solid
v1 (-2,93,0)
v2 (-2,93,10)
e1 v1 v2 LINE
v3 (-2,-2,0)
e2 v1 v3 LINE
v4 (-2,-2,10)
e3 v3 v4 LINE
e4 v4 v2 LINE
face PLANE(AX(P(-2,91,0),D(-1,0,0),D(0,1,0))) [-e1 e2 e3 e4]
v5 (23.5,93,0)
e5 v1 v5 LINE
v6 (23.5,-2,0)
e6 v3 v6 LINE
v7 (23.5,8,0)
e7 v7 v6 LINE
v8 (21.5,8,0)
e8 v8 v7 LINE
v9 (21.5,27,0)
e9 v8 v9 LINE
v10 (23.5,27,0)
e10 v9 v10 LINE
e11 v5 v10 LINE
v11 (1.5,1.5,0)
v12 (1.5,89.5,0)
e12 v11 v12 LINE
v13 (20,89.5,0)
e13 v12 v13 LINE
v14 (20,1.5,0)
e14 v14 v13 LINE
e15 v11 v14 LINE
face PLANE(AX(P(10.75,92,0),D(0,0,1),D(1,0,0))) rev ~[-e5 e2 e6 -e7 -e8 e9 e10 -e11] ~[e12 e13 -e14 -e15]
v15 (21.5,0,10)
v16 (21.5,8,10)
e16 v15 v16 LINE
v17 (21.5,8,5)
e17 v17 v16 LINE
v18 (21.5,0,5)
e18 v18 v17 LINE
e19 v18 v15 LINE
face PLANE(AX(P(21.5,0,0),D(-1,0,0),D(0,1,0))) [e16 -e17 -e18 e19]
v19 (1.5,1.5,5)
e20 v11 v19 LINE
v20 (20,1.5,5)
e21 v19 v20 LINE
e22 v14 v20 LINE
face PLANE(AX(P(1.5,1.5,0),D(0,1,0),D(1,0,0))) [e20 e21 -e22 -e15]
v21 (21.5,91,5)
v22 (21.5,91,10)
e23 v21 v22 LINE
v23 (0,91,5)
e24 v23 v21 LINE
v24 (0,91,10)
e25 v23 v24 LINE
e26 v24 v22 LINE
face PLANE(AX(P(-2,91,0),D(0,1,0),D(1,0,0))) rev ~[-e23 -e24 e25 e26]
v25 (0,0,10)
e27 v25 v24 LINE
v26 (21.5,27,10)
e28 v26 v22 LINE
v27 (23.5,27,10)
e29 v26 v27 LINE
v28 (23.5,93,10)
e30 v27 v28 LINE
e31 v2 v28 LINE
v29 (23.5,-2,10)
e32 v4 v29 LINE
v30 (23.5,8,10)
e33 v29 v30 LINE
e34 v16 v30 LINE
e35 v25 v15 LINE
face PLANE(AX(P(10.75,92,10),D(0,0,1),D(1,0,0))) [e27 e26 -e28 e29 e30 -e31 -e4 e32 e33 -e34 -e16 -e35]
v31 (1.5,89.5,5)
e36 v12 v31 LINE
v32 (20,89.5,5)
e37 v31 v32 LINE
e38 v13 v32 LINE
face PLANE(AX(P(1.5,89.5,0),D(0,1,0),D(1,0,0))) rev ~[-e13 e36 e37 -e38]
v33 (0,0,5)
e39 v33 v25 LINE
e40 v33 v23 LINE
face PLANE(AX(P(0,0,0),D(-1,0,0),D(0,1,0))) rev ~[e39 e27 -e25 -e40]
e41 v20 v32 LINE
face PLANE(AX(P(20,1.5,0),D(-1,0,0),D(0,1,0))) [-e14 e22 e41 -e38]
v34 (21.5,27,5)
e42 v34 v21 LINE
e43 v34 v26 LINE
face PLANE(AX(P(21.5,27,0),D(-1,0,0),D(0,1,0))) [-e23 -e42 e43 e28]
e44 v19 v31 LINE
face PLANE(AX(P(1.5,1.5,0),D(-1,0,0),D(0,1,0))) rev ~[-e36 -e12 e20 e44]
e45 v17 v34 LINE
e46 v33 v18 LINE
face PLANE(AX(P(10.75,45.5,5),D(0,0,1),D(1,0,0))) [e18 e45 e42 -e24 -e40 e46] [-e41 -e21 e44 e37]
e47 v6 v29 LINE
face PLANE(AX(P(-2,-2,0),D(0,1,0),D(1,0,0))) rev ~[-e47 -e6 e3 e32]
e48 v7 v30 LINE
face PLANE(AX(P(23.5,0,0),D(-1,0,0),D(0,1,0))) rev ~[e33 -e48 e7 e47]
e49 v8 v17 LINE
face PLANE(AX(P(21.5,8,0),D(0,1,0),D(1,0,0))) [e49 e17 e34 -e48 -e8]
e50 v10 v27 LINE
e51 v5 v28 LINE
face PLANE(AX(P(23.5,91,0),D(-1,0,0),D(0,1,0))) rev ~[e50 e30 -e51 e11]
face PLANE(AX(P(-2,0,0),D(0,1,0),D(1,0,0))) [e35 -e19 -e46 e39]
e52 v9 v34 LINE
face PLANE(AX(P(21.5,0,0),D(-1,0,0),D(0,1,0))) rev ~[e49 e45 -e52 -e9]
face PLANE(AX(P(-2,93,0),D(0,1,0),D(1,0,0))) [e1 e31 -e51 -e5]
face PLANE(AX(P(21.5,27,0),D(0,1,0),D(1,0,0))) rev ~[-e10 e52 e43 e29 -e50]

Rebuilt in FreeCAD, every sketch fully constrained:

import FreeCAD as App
import Part
import Sketcher

doc = App.newDocument("Part")
body = doc.addObject("PartDesign::Body", "Body")

# Sketch on XY plane
sketch1 = body.newObject("Sketcher::SketchObject", "Sketch")
sketch1.AttachmentSupport = (doc.getObject("XY_Plane"), [""])
sketch1.MapMode = "FlatFace"
sketch1.addGeometry(Part.LineSegment(App.Vector(-2, 93, 0), App.Vector(-2, 91, 0)), False)
sketch1.addGeometry(Part.LineSegment(App.Vector(-2, 91, 0), App.Vector(23.5, 91, 0)), False)
sketch1.addGeometry(Part.LineSegment(App.Vector(23.5, 91, 0), App.Vector(23.5, 93, 0)), False)
sketch1.addGeometry(Part.LineSegment(App.Vector(23.5, 93, 0), App.Vector(-2, 93, 0)), False)
sketch1.addConstraint(Sketcher.Constraint("Coincident", 0, 2, 1, 1))
sketch1.addConstraint(Sketcher.Constraint("Coincident", 1, 2, 2, 1))
sketch1.addConstraint(Sketcher.Constraint("Coincident", 2, 2, 3, 1))
sketch1.addConstraint(Sketcher.Constraint("Coincident", 3, 2, 0, 1))
sketch1.addConstraint(Sketcher.Constraint("Vertical", 0))
sketch1.addConstraint(Sketcher.Constraint("Horizontal", 1))
sketch1.addConstraint(Sketcher.Constraint("Vertical", 2))
sketch1.addConstraint(Sketcher.Constraint("Horizontal", 3))
sketch1.addConstraint(Sketcher.Constraint("DistanceY", 0, 2, 0, 1, 2.0))
sketch1.addConstraint(Sketcher.Constraint("DistanceX", 1, 1, 1, 2, 25.5))
sketch1.addConstraint(Sketcher.Constraint("DistanceX", 0, 2, -1, 1, 2.0))
sketch1.addConstraint(Sketcher.Constraint("DistanceY", -1, 1, 0, 2, 91.0))
pad1 = body.newObject("PartDesign::Pad", "Pad")
pad1.Profile = sketch1
pad1.Length = 10
body2 = doc.addObject("PartDesign::Body", "Body001")

# Sketch on XY plane
sketch2 = body2.newObject("Sketcher::SketchObject", "Sketch001")
sketch2.AttachmentSupport = (doc.getObject("XY_Plane001"), [""])
sketch2.MapMode = "FlatFace"
sketch2.addGeometry(Part.LineSegment(App.Vector(21.5, 8, 0), App.Vector(21.5, 0, 0)), False)
sketch2.addGeometry(Part.LineSegment(App.Vector(21.5, 0, 0), App.Vector(23.5, 0, 0)), False)
sketch2.addGeometry(Part.LineSegment(App.Vector(23.5, 0, 0), App.Vector(23.5, 8, 0)), False)
sketch2.addGeometry(Part.LineSegment(App.Vector(23.5, 8, 0), App.Vector(21.5, 8, 0)), False)
sketch2.addConstraint(Sketcher.Constraint("Coincident", 0, 2, 1, 1))
sketch2.addConstraint(Sketcher.Constraint("Coincident", 1, 2, 2, 1))
sketch2.addConstraint(Sketcher.Constraint("Coincident", 2, 2, 3, 1))
sketch2.addConstraint(Sketcher.Constraint("Coincident", 3, 2, 0, 1))
sketch2.addConstraint(Sketcher.Constraint("Vertical", 0))
sketch2.addConstraint(Sketcher.Constraint("Horizontal", 1))
sketch2.addConstraint(Sketcher.Constraint("Vertical", 2))
sketch2.addConstraint(Sketcher.Constraint("Horizontal", 3))
sketch2.addConstraint(Sketcher.Constraint("PointOnObject", 0, 2, -1))
sketch2.addConstraint(Sketcher.Constraint("DistanceX", 1, 1, 1, 2, 2.0))
sketch2.addConstraint(Sketcher.Constraint("DistanceY", 0, 2, 0, 1, 8.0))
sketch2.addConstraint(Sketcher.Constraint("DistanceX", -1, 1, 0, 2, 21.5))
pad2 = body2.newObject("PartDesign::Pad", "Pad001")
pad2.Profile = sketch2
pad2.Length = 10
body3 = doc.addObject("PartDesign::Body", "Body002")

# Sketch on XY plane
sketch3 = body3.newObject("Sketcher::SketchObject", "Sketch002")
sketch3.AttachmentSupport = (doc.getObject("XY_Plane002"), [""])
sketch3.MapMode = "FlatFace"
sketch3.addGeometry(Part.LineSegment(App.Vector(21.5, 91, 0), App.Vector(21.5, 27, 0)), False)
sketch3.addGeometry(Part.LineSegment(App.Vector(21.5, 27, 0), App.Vector(23.5, 27, 0)), False)
sketch3.addGeometry(Part.LineSegment(App.Vector(23.5, 27, 0), App.Vector(23.5, 91, 0)), False)
sketch3.addGeometry(Part.LineSegment(App.Vector(23.5, 91, 0), App.Vector(21.5, 91, 0)), False)
sketch3.addConstraint(Sketcher.Constraint("Coincident", 0, 2, 1, 1))
sketch3.addConstraint(Sketcher.Constraint("Coincident", 1, 2, 2, 1))
sketch3.addConstraint(Sketcher.Constraint("Coincident", 2, 2, 3, 1))
sketch3.addConstraint(Sketcher.Constraint("Coincident", 3, 2, 0, 1))
sketch3.addConstraint(Sketcher.Constraint("Vertical", 0))
sketch3.addConstraint(Sketcher.Constraint("Horizontal", 1))
sketch3.addConstraint(Sketcher.Constraint("Vertical", 2))
sketch3.addConstraint(Sketcher.Constraint("Horizontal", 3))
sketch3.addConstraint(Sketcher.Constraint("DistanceX", 1, 1, 1, 2, 2.0))
sketch3.addConstraint(Sketcher.Constraint("DistanceY", 0, 2, 0, 1, 64.0))
sketch3.addConstraint(Sketcher.Constraint("DistanceY", -1, 1, 0, 2, 27.0))
sketch3.addConstraint(Sketcher.Constraint("DistanceX", -1, 1, 0, 2, 21.5))
pad3 = body3.newObject("PartDesign::Pad", "Pad002")
pad3.Profile = sketch3
pad3.Length = 10
body4 = doc.addObject("PartDesign::Body", "Body003")

# Sketch on XY plane
sketch4 = body4.newObject("Sketcher::SketchObject", "Sketch003")
sketch4.AttachmentSupport = (doc.getObject("XY_Plane003"), [""])
sketch4.MapMode = "FlatFace"
sketch4.addGeometry(Part.LineSegment(App.Vector(-2, 0, 0), App.Vector(-2, -2, 0)), False)
sketch4.addGeometry(Part.LineSegment(App.Vector(-2, -2, 0), App.Vector(23.5, -2, 0)), False)
sketch4.addGeometry(Part.LineSegment(App.Vector(23.5, -2, 0), App.Vector(23.5, 0, 0)), False)
sketch4.addGeometry(Part.LineSegment(App.Vector(23.5, 0, 0), App.Vector(-2, 0, 0)), False)
sketch4.addConstraint(Sketcher.Constraint("Coincident", 0, 2, 1, 1))
sketch4.addConstraint(Sketcher.Constraint("Coincident", 1, 2, 2, 1))
sketch4.addConstraint(Sketcher.Constraint("Coincident", 2, 2, 3, 1))
sketch4.addConstraint(Sketcher.Constraint("Coincident", 3, 2, 0, 1))
sketch4.addConstraint(Sketcher.Constraint("Vertical", 0))
sketch4.addConstraint(Sketcher.Constraint("Horizontal", 1))
sketch4.addConstraint(Sketcher.Constraint("Vertical", 2))
sketch4.addConstraint(Sketcher.Constraint("Horizontal", 3))
sketch4.addConstraint(Sketcher.Constraint("PointOnObject", 2, 2, -1))
sketch4.addConstraint(Sketcher.Constraint("DistanceY", 0, 2, 0, 1, 2.0))
sketch4.addConstraint(Sketcher.Constraint("DistanceX", 1, 1, 1, 2, 25.5))
sketch4.addConstraint(Sketcher.Constraint("DistanceX", 0, 2, -1, 1, 2.0))
pad4 = body4.newObject("PartDesign::Pad", "Pad003")
pad4.Profile = sketch4
pad4.Length = 10
body5 = doc.addObject("PartDesign::Body", "Body004")
body5.AllowCompound = True

# Sketch on XY plane
sketch5 = body5.newObject("Sketcher::SketchObject", "Sketch004")
sketch5.AttachmentSupport = (doc.getObject("XY_Plane004"), [""])
sketch5.MapMode = "FlatFace"
sketch5.addGeometry(Part.LineSegment(App.Vector(-2, 91, 0), App.Vector(-2, 0, 0)), False)
sketch5.addGeometry(Part.LineSegment(App.Vector(-2, 0, 0), App.Vector(0, 0, 0)), False)
sketch5.addGeometry(Part.LineSegment(App.Vector(0, 0, 0), App.Vector(0, 91, 0)), False)
sketch5.addGeometry(Part.LineSegment(App.Vector(0, 91, 0), App.Vector(-2, 91, 0)), False)
sketch5.addConstraint(Sketcher.Constraint("Coincident", 0, 2, 1, 1))
sketch5.addConstraint(Sketcher.Constraint("Coincident", 1, 2, 2, 1))
sketch5.addConstraint(Sketcher.Constraint("Coincident", 2, 2, 3, 1))
sketch5.addConstraint(Sketcher.Constraint("Coincident", 3, 2, 0, 1))
sketch5.addConstraint(Sketcher.Constraint("Vertical", 0))
sketch5.addConstraint(Sketcher.Constraint("Horizontal", 1))
sketch5.addConstraint(Sketcher.Constraint("Vertical", 2))
sketch5.addConstraint(Sketcher.Constraint("Horizontal", 3))
sketch5.addConstraint(Sketcher.Constraint("Coincident", 1, 2, -1, 1))
sketch5.addConstraint(Sketcher.Constraint("DistanceX", 1, 1, 1, 2, 2.0))
sketch5.addConstraint(Sketcher.Constraint("DistanceY", 0, 2, 0, 1, 91.0))
pad5 = body5.newObject("PartDesign::Pad", "Pad004")
pad5.Profile = sketch5
pad5.Length = 10
doc.recompute()

boolean = body5.newObject("PartDesign::Boolean", "Boolean")
boolean.Type = "Fuse"
boolean.addObjects([body4])
doc.recompute()

boolean2 = body5.newObject("PartDesign::Boolean", "Boolean001")
boolean2.Type = "Fuse"
boolean2.addObjects([body3])
doc.recompute()

boolean3 = body5.newObject("PartDesign::Boolean", "Boolean002")
boolean3.Type = "Fuse"
boolean3.addObjects([body2])
doc.recompute()

boolean4 = body5.newObject("PartDesign::Boolean", "Boolean003")
boolean4.Type = "Fuse"
boolean4.addObjects([body])
body6 = doc.addObject("PartDesign::Body", "Body005")

# Sketch on XY plane
sketch6 = body6.newObject("Sketcher::SketchObject", "Sketch005")
sketch6.AttachmentSupport = (doc.getObject("XY_Plane005"), [""])
sketch6.MapMode = "FlatFace"
sketch6.addGeometry(Part.LineSegment(App.Vector(1.5, 89.5, 0), App.Vector(1.5, 1.5, 0)), False)
sketch6.addGeometry(Part.LineSegment(App.Vector(1.5, 1.5, 0), App.Vector(20, 1.5, 0)), False)
sketch6.addGeometry(Part.LineSegment(App.Vector(20, 1.5, 0), App.Vector(20, 89.5, 0)), False)
sketch6.addGeometry(Part.LineSegment(App.Vector(20, 89.5, 0), App.Vector(1.5, 89.5, 0)), False)
sketch6.addConstraint(Sketcher.Constraint("Coincident", 0, 2, 1, 1))
sketch6.addConstraint(Sketcher.Constraint("Coincident", 1, 2, 2, 1))
sketch6.addConstraint(Sketcher.Constraint("Coincident", 2, 2, 3, 1))
sketch6.addConstraint(Sketcher.Constraint("Coincident", 3, 2, 0, 1))
sketch6.addConstraint(Sketcher.Constraint("Vertical", 0))
sketch6.addConstraint(Sketcher.Constraint("Horizontal", 1))
sketch6.addConstraint(Sketcher.Constraint("Vertical", 2))
sketch6.addConstraint(Sketcher.Constraint("Horizontal", 3))
sketch6.addConstraint(Sketcher.Constraint("DistanceY", 0, 2, 0, 1, 88.0))
sketch6.addConstraint(Sketcher.Constraint("DistanceX", 1, 1, 1, 2, 18.5))
sketch6.addConstraint(Sketcher.Constraint("DistanceX", -1, 1, 1, 2, 20.0))
sketch6.addConstraint(Sketcher.Constraint("DistanceY", -1, 1, 0, 2, 1.5))
pad6 = body6.newObject("PartDesign::Pad", "Pad005")
pad6.Profile = sketch6
pad6.Length = 5
body7 = doc.addObject("PartDesign::Body", "Body006")

# Sketch on XY plane
sketch7 = body7.newObject("Sketcher::SketchObject", "Sketch006")
sketch7.AttachmentSupport = (doc.getObject("XY_Plane006"), [""])
sketch7.MapMode = "FlatFace"
sketch7.addGeometry(Part.LineSegment(App.Vector(0, 91, 0), App.Vector(0, 0, 0)), False)
sketch7.addGeometry(Part.LineSegment(App.Vector(0, 0, 0), App.Vector(21.5, 0, 0)), False)
sketch7.addGeometry(Part.LineSegment(App.Vector(21.5, 0, 0), App.Vector(21.5, 91, 0)), False)
sketch7.addGeometry(Part.LineSegment(App.Vector(21.5, 91, 0), App.Vector(0, 91, 0)), False)
sketch7.addConstraint(Sketcher.Constraint("Coincident", 0, 2, 1, 1))
sketch7.addConstraint(Sketcher.Constraint("Coincident", 1, 2, 2, 1))
sketch7.addConstraint(Sketcher.Constraint("Coincident", 2, 2, 3, 1))
sketch7.addConstraint(Sketcher.Constraint("Coincident", 3, 2, 0, 1))
sketch7.addConstraint(Sketcher.Constraint("Vertical", 0))
sketch7.addConstraint(Sketcher.Constraint("Horizontal", 1))
sketch7.addConstraint(Sketcher.Constraint("Vertical", 2))
sketch7.addConstraint(Sketcher.Constraint("Horizontal", 3))
sketch7.addConstraint(Sketcher.Constraint("Coincident", 0, 2, -1, 1))
sketch7.addConstraint(Sketcher.Constraint("DistanceY", 0, 2, 0, 1, 91.0))
sketch7.addConstraint(Sketcher.Constraint("DistanceX", 1, 1, 1, 2, 21.5))
pad7 = body7.newObject("PartDesign::Pad", "Pad006")
pad7.Profile = sketch7
pad7.Length = 5
doc.recompute()

boolean5 = body7.newObject("PartDesign::Boolean", "Boolean004")
boolean5.Type = "Cut"
boolean5.addObjects([body6])
doc.recompute()

boolean6 = body7.newObject("PartDesign::Boolean", "Boolean005")
boolean6.Type = "Fuse"
boolean6.addObjects([body5])

doc.recompute()
